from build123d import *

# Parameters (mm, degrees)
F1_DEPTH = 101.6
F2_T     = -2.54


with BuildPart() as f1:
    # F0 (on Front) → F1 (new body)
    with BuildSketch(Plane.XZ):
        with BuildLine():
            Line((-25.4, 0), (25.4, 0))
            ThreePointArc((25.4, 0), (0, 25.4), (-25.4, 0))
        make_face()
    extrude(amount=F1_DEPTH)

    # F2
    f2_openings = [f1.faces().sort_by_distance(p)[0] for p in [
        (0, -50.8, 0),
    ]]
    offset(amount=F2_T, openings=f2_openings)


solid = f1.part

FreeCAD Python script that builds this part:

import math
import FreeCAD as App
import Part
import Sketcher
from FreeCAD import Vector
Q = App.Units.Quantity


def faces_at(feature, points):
    """Names of the faces that lie closest to the given points."""
    faces = feature.Shape.Faces
    near = lambda p: min(range(len(faces)), key=lambda i: faces[i].distToShape(Part.Vertex(*p))[0])
    return sorted({f"Face{near(p) + 1}" for p in points})

doc = App.newDocument("Part")
body = doc.addObject("PartDesign::Body", "Body")

sketch1 = body.newObject("Sketcher::SketchObject", "Sketch")
sketch1.AttachmentSupport = (doc.getObject("XZ_Plane"), [""])
sketch1.MapMode = "FlatFace"
sketch1.addGeometry(Part.LineSegment(Vector(-25.4, 0, 0), Vector(25.4, 0, 0)), False)
sketch1.addGeometry(Part.ArcOfCircle(Part.Circle(Vector(0, 0, 0), Vector(0, 0, 1), 25.4), math.radians(0), math.radians(180)), False)
sketch1.addConstraint(Sketcher.Constraint("Coincident", 0, 1, 1, 2))
sketch1.addConstraint(Sketcher.Constraint("Coincident", 1, 1, 0, 2))
sketch1.addConstraint(Sketcher.Constraint("Horizontal", 0))
sketch1.addConstraint(Sketcher.Constraint("Coincident", 1, 3, -1, 1))
sketch1.addConstraint(Sketcher.Constraint("PointOnObject", 0, 1, -1))
sketch1.addConstraint(Sketcher.Constraint("Radius", 1, Q("1 in")))
pad1 = body.newObject("PartDesign::Pad", "Pad")
pad1.Profile = sketch1
pad1.Length = Q("4 in")
doc.recompute()

thickness = body.newObject("PartDesign::Thickness", "Thickness")
thickness.Base = (pad1, faces_at(pad1, [(0, -50.8, 0)]))
thickness.Value = Q("0.1 in")
thickness.Reversed = True
thickness.Join = "Arc"

doc.recompute()
